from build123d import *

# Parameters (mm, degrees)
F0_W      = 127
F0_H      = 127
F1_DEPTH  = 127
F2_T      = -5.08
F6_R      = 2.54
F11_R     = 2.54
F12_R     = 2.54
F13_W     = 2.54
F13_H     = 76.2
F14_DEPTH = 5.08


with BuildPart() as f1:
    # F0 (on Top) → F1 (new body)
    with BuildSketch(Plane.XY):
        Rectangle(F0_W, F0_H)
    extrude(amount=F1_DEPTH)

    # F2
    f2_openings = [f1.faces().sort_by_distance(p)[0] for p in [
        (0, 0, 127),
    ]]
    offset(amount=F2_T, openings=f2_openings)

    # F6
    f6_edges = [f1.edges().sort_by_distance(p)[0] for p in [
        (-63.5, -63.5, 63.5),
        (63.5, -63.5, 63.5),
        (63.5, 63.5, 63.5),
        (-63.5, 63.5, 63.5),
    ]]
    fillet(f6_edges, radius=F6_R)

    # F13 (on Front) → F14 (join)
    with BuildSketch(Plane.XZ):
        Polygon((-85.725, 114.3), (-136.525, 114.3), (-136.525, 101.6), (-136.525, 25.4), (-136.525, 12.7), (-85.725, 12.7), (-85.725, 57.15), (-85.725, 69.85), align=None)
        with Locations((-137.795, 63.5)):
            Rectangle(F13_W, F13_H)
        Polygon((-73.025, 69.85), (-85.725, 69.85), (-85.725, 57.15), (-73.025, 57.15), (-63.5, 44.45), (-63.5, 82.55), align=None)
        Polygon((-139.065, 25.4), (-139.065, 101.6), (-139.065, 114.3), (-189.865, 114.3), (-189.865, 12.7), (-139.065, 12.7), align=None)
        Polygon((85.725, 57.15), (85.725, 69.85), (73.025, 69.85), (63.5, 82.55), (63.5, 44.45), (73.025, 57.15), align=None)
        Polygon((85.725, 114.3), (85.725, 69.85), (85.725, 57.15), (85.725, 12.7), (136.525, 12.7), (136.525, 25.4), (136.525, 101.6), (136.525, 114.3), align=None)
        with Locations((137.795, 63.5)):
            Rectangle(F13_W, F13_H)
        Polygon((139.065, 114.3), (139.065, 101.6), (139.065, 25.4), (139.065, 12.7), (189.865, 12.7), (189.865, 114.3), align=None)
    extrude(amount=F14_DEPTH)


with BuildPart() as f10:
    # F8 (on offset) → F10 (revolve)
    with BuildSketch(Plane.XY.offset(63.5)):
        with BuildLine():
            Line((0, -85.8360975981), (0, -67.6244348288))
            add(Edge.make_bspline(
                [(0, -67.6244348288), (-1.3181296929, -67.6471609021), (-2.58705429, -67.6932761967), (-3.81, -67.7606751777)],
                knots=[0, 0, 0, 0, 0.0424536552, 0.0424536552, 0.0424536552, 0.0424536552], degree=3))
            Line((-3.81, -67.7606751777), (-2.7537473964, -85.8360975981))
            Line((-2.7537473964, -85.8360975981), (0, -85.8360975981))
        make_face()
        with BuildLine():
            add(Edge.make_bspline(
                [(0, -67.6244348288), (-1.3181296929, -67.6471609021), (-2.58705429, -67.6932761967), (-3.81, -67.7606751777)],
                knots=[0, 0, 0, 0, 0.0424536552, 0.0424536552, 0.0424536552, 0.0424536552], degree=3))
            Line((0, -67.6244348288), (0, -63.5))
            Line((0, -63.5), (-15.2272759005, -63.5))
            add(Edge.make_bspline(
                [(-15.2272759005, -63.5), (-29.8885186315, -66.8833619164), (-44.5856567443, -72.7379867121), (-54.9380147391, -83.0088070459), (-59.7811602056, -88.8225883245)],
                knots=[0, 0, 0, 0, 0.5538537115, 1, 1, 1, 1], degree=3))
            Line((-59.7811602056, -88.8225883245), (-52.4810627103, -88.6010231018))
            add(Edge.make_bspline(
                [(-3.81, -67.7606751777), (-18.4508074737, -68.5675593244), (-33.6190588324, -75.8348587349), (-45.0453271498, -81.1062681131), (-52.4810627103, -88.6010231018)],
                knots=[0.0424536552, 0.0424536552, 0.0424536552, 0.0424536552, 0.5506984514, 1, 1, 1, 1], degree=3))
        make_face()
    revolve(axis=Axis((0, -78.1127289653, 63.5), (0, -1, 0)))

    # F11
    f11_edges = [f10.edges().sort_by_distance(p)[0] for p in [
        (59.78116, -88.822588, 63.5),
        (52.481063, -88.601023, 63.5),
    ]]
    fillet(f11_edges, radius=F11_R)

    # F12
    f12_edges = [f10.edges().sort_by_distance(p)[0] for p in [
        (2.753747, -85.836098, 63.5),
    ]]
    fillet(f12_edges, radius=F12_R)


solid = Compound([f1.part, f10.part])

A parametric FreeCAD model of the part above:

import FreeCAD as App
import Part
import Sketcher
Q = App.Units.Quantity


def edges_at(feature, points):
    """Names of the edges that pass closest to the given points."""
    edges = feature.Shape.Edges
    near = lambda p: min(range(len(edges)), key=lambda i: edges[i].distToShape(Part.Vertex(*p))[0])
    return sorted({f"Edge{near(p) + 1}" for p in points})


def faces_at(feature, points):
    """Names of the faces that lie closest to the given points."""
    faces = feature.Shape.Faces
    near = lambda p: min(range(len(faces)), key=lambda i: faces[i].distToShape(Part.Vertex(*p))[0])
    return sorted({f"Face{near(p) + 1}" for p in points})

doc = App.newDocument("Part")
body = doc.addObject("PartDesign::Body", "Body")

# Sketch on XY plane
sketch1 = body.newObject("Sketcher::SketchObject", "Sketch")
sketch1.AttachmentSupport = (doc.getObject("XY_Plane"), [""])
sketch1.MapMode = "FlatFace"
sketch1.addGeometry([
    Part.LineSegment(App.Vector(-64, 64, 0), App.Vector(-64, -64, 0)),
    Part.LineSegment(App.Vector(-64, -64, 0), App.Vector(64, -64, 0)),
    Part.LineSegment(App.Vector(64, -64, 0), App.Vector(64, 64, 0)),
    Part.LineSegment(App.Vector(64, 64, 0), App.Vector(-64, 64, 0)),
], False)
sketch1.addConstraint([
    Sketcher.Constraint("Coincident", 0, 2, 1, 1),
    Sketcher.Constraint("Coincident", 1, 2, 2, 1),
    Sketcher.Constraint("Coincident", 2, 2, 3, 1),
    Sketcher.Constraint("Coincident", 3, 2, 0, 1),
    Sketcher.Constraint("Vertical", 0),
    Sketcher.Constraint("Horizontal", 1),
    Sketcher.Constraint("Vertical", 2),
    Sketcher.Constraint("Horizontal", 3),
    Sketcher.Constraint("Symmetric", 0, 2, 2, 2, -1, 1),
    Sketcher.Constraint("Equal", 3, 0),
    Sketcher.Constraint("DistanceX", 1, 1, 1, 2, Q("5 in")),
])
pad1 = body.newObject("PartDesign::Pad", "Pad")
pad1.Profile = sketch1
pad1.Length = Q("5 in")
doc.recompute()

thickness = body.newObject("PartDesign::Thickness", "Thickness")
thickness.Base = (pad1, faces_at(pad1, [(0, 0, 127)]))
thickness.Value = Q("0.2 in")
thickness.Reversed = True
thickness.Join = "Arc"
doc.recompute()

fillet = body.newObject("PartDesign::Fillet", "Fillet")
fillet.Base = (thickness, edges_at(thickness, [
    (-63.5, -63.5, 63.5),
    (63.5, -63.5, 63.5),
    (63.5, 63.5, 63.5),
    (-63.5, 63.5, 63.5),
]))
fillet.Radius = Q("0.1 in")

# Sketch on XZ plane
sketch2 = body.newObject("Sketcher::SketchObject", "Sketch001")
sketch2.AttachmentSupport = (doc.getObject("XZ_Plane"), [""])
sketch2.MapMode = "FlatFace"
sketch2.addGeometry([
    Part.LineSegment(App.Vector(-85.7, 114.3, 0), App.Vector(-136.5, 114.3, 0)),  # 0
    Part.LineSegment(App.Vector(-136.5, 114.3, 0), App.Vector(-136.5, 101.6, 0)),  # 1
    Part.LineSegment(App.Vector(-136.5, 101.6, 0), App.Vector(-139.1, 101.6, 0)),  # 2
    Part.LineSegment(App.Vector(-139.1, 101.6, 0), App.Vector(-139.1, 114.3, 0)),  # 3
    Part.LineSegment(App.Vector(-139.1, 114.3, 0), App.Vector(-189.9, 114.3, 0)),  # 4
    Part.LineSegment(App.Vector(-189.9, 114.3, 0), App.Vector(-189.9, 12.7, 0)),  # 5
    Part.LineSegment(App.Vector(-189.9, 12.7, 0), App.Vector(-139.1, 12.7, 0)),  # 6
    Part.LineSegment(App.Vector(-139.1, 12.7, 0), App.Vector(-139.1, 25.4, 0)),  # 7
    Part.LineSegment(App.Vector(-139.1, 25.4, 0), App.Vector(-136.5, 25.4, 0)),  # 8
    Part.LineSegment(App.Vector(-136.5, 25.4, 0), App.Vector(-136.5, 12.7, 0)),  # 9
    Part.LineSegment(App.Vector(-136.5, 12.7, 0), App.Vector(-85.7, 12.7, 0)),  # 10
    Part.LineSegment(App.Vector(-85.7, 12.7, 0), App.Vector(-85.7, 57.1, 0)),  # 11
    Part.LineSegment(App.Vector(-85.7, 57.1, 0), App.Vector(-73, 57.1, 0)),  # 12
    Part.LineSegment(App.Vector(-73, 57.1, 0), App.Vector(-63.5, 44.5, 0)),  # 13
    Part.LineSegment(App.Vector(-63.5, 44.5, 0), App.Vector(-63.5, 82.5, 0)),  # 14
    Part.LineSegment(App.Vector(-63.5, 82.5, 0), App.Vector(-73, 69.8, 0)),  # 15
    Part.LineSegment(App.Vector(-73, 69.8, 0), App.Vector(-85.7, 69.8, 0)),  # 16
    Part.LineSegment(App.Vector(-85.7, 69.8, 0), App.Vector(-85.7, 114.3, 0)),  # 17
    Part.LineSegment(App.Vector(85.7, 69.8, 0), App.Vector(73, 69.8, 0)),  # 18
    Part.LineSegment(App.Vector(73, 69.8, 0), App.Vector(63.5, 82.5, 0)),  # 19
    Part.LineSegment(App.Vector(63.5, 82.5, 0), App.Vector(63.5, 44.5, 0)),  # 20
    Part.LineSegment(App.Vector(63.5, 44.5, 0), App.Vector(73, 57.1, 0)),  # 21
    Part.LineSegment(App.Vector(73, 57.1, 0), App.Vector(85.7, 57.1, 0)),  # 22
    Part.LineSegment(App.Vector(85.7, 57.1, 0), App.Vector(85.7, 12.7, 0)),  # 23
    Part.LineSegment(App.Vector(85.7, 12.7, 0), App.Vector(136.5, 12.7, 0)),  # 24
    Part.LineSegment(App.Vector(136.5, 12.7, 0), App.Vector(136.5, 25.4, 0)),  # 25
    Part.LineSegment(App.Vector(136.5, 25.4, 0), App.Vector(139.1, 25.4, 0)),  # 26
    Part.LineSegment(App.Vector(139.1, 25.4, 0), App.Vector(139.1, 12.7, 0)),  # 27
    Part.LineSegment(App.Vector(139.1, 12.7, 0), App.Vector(189.9, 12.7, 0)),  # 28
    Part.LineSegment(App.Vector(189.9, 12.7, 0), App.Vector(189.9, 114.3, 0)),  # 29
    Part.LineSegment(App.Vector(189.9, 114.3, 0), App.Vector(139.1, 114.3, 0)),  # 30
    Part.LineSegment(App.Vector(139.1, 114.3, 0), App.Vector(139.1, 101.6, 0)),  # 31
    Part.LineSegment(App.Vector(139.1, 101.6, 0), App.Vector(136.5, 101.6, 0)),  # 32
    Part.LineSegment(App.Vector(136.5, 101.6, 0), App.Vector(136.5, 114.3, 0)),  # 33
    Part.LineSegment(App.Vector(136.5, 114.3, 0), App.Vector(85.7, 114.3, 0)),  # 34
    Part.LineSegment(App.Vector(85.7, 114.3, 0), App.Vector(85.7, 69.8, 0)),  # 35
], False)
sketch2.addConstraint([
    Sketcher.Constraint("Coincident", 0, 2, 1, 1),
    Sketcher.Constraint("Coincident", 1, 2, 2, 1),
    Sketcher.Constraint("Coincident", 2, 2, 3, 1),
    Sketcher.Constraint("Coincident", 3, 2, 4, 1),
    Sketcher.Constraint("Coincident", 4, 2, 5, 1),
    Sketcher.Constraint("Coincident", 5, 2, 6, 1),
    Sketcher.Constraint("Coincident", 6, 2, 7, 1),
    Sketcher.Constraint("Coincident", 7, 2, 8, 1),
    Sketcher.Constraint("Coincident", 8, 2, 9, 1),
    Sketcher.Constraint("Coincident", 9, 2, 10, 1),
    Sketcher.Constraint("Coincident", 10, 2, 11, 1),
    Sketcher.Constraint("Coincident", 11, 2, 12, 1),
    Sketcher.Constraint("Coincident", 12, 2, 13, 1),
    Sketcher.Constraint("Coincident", 13, 2, 14, 1),
    Sketcher.Constraint("Coincident", 14, 2, 15, 1),
    Sketcher.Constraint("Coincident", 15, 2, 16, 1),
    Sketcher.Constraint("Coincident", 16, 2, 17, 1),
    Sketcher.Constraint("Coincident", 17, 2, 0, 1),
    Sketcher.Constraint("Coincident", 18, 2, 19, 1),
    Sketcher.Constraint("Coincident", 19, 2, 20, 1),
    Sketcher.Constraint("Coincident", 20, 2, 21, 1),
    Sketcher.Constraint("Coincident", 21, 2, 22, 1),
    Sketcher.Constraint("Coincident", 22, 2, 23, 1),
    Sketcher.Constraint("Coincident", 23, 2, 24, 1),
    Sketcher.Constraint("Coincident", 24, 2, 25, 1),
    Sketcher.Constraint("Coincident", 25, 2, 26, 1),
    Sketcher.Constraint("Coincident", 26, 2, 27, 1),
    Sketcher.Constraint("Coincident", 27, 2, 28, 1),
    Sketcher.Constraint("Coincident", 28, 2, 29, 1),
    Sketcher.Constraint("Coincident", 29, 2, 30, 1),
    Sketcher.Constraint("Coincident", 30, 2, 31, 1),
    Sketcher.Constraint("Coincident", 31, 2, 32, 1),
    Sketcher.Constraint("Coincident", 32, 2, 33, 1),
    Sketcher.Constraint("Coincident", 33, 2, 34, 1),
    Sketcher.Constraint("Coincident", 34, 2, 35, 1),
    Sketcher.Constraint("Coincident", 35, 2, 18, 1),
    Sketcher.Constraint("Horizontal", 0),
    Sketcher.Constraint("Vertical", 1),
    Sketcher.Constraint("Horizontal", 2),
    Sketcher.Constraint("Vertical", 3),
    Sketcher.Constraint("Horizontal", 4),
    Sketcher.Constraint("Vertical", 5),
    Sketcher.Constraint("Horizontal", 6),
    Sketcher.Constraint("Vertical", 7),
    Sketcher.Constraint("Horizontal", 8),
    Sketcher.Constraint("Vertical", 9),
    Sketcher.Constraint("Horizontal", 10),
    Sketcher.Constraint("Vertical", 11),
    Sketcher.Constraint("Horizontal", 12),
    Sketcher.Constraint("Vertical", 14),
    Sketcher.Constraint("Horizontal", 16),
    Sketcher.Constraint("Vertical", 17),
    Sketcher.Constraint("Horizontal", 18),
    Sketcher.Constraint("Vertical", 20),
    Sketcher.Constraint("Horizontal", 22),
    Sketcher.Constraint("Vertical", 23),
    Sketcher.Constraint("Horizontal", 24),
    Sketcher.Constraint("Vertical", 25),
    Sketcher.Constraint("Horizontal", 26),
    Sketcher.Constraint("Vertical", 27),
    Sketcher.Constraint("Horizontal", 28),
    Sketcher.Constraint("Vertical", 29),
    Sketcher.Constraint("Horizontal", 30),
    Sketcher.Constraint("Vertical", 31),
    Sketcher.Constraint("Horizontal", 32),
    Sketcher.Constraint("Vertical", 33),
    Sketcher.Constraint("Horizontal", 34),
    Sketcher.Constraint("Vertical", 35),
    Sketcher.Constraint("Symmetric", 15, 2, 18, 2, -2),
    Sketcher.Constraint("Symmetric", 14, 2, 19, 2, -2),
    Sketcher.Constraint("Symmetric", 12, 2, 21, 2, -2),
    Sketcher.Constraint("Symmetric", 10, 2, 23, 2, -2),
    Sketcher.Constraint("Symmetric", 8, 2, 25, 2, -2),
    Sketcher.Constraint("Symmetric", 6, 2, 27, 2, -2),
    Sketcher.Constraint("Symmetric", 4, 2, 29, 2, -2),
    Sketcher.Constraint("Symmetric", 2, 2, 31, 2, -2),
    Sketcher.Constraint("Symmetric", 0, 2, 33, 2, -2),
    Sketcher.Constraint("Parallel", 13, 19),
    Sketcher.Constraint("Parallel", 15, 21),
    Sketcher.Constraint("Horizontal", 0, 2, 3, 2),
    Sketcher.Constraint("Horizontal", 6, 2, 9, 2),
    Sketcher.Constraint("Vertical", 3, 2, 6, 2),
    Sketcher.Constraint("Vertical", 1, 2, 8, 2),
    Sketcher.Constraint("Vertical", 12, 2, 15, 2),
    Sketcher.Constraint("Vertical", 11, 2, 16, 2),
    Sketcher.Constraint("Vertical", 23, 2, 34, 2),
    Sketcher.Constraint("Equal", 0, 4),
    Sketcher.Constraint("Equal", 22, 1),
    Sketcher.Constraint("Equal", 3, 7),
    Sketcher.Constraint("Equal", 11, 17),
    Sketcher.Constraint("DistanceX", 0, 2, 0, 1, Q("2 in")),
    Sketcher.Constraint("DistanceY", 5, 2, 5, 1, Q("4 in")),
    Sketcher.Constraint("DistanceX", 2, 2, 2, 1, Q("0.1 in")),
    Sketcher.Constraint("DistanceX", 12, 1, 12, 2, Q("0.5 in")),
    Sketcher.Constraint("DistanceY", 14, 1, 14, 2, Q("1.5 in")),
    Sketcher.Constraint("DistanceY", -1, 1, 1, 2, Q("4 in")),
    Sketcher.Constraint("DistanceY", 12, 2, 14, 2, Q("1 in")),
    Sketcher.Constraint("DistanceX", 14, 2, 19, 2, Q("5 in")),
    Sketcher.Constraint("DistanceX", 15, 2, 18, 2, Q("5.75 in")),
])
pad2 = body.newObject("PartDesign::Pad", "Pad001")
pad2.Profile = sketch2
pad2.Length = Q("0.2 in")
body2 = doc.addObject("PartDesign::Body", "Body001")

# Sketch on XY plane
sketch3 = body2.newObject("Sketcher::SketchObject", "Sketch002")
sketch3.AttachmentSupport = (doc.getObject("XY_Plane001"), [""])
sketch3.MapMode = "FlatFace"
sketch3.AttachmentOffset = App.Placement(App.Vector(0, 0, 2.5 * 25.4), App.Rotation())
sketch3.addGeometry([
    Part.LineSegment(App.Vector(0, -85.836098, 0), App.Vector(0, -63.5, 0)),  # 0
    Part.LineSegment(App.Vector(0, -63.5, 0), App.Vector(-15.227276, -63.5, 0)),  # 1
    Part.BSplineCurve([App.Vector(-15.227276, -63.5, 0), App.Vector(-29.888519, -66.883362, 0), App.Vector(-44.585657, -72.737987, 0), App.Vector(-54.938015, -83.008807, 0), App.Vector(-59.78116, -88.822588, 0)], [4, 1, 4], [0, 0.553853711, 1], False, 3, [1, 1, 1, 1, 1], False),  # 2
    Part.LineSegment(App.Vector(-59.78116, -88.822588, 0), App.Vector(-52.481063, -88.601023, 0)),  # 3
    Part.BSplineCurve([App.Vector(-3.81, -67.760675, 0), App.Vector(-18.450807, -68.567559, 0), App.Vector(-33.619059, -75.834859, 0), App.Vector(-45.045327, -81.106268, 0), App.Vector(-52.481063, -88.601023, 0)], [4, 1, 4], [0.042453655, 0.550698451, 1], False, 3, [1, 1, 1, 1, 1], False),  # 4
    Part.LineSegment(App.Vector(-3.81, -67.760675, 0), App.Vector(-2.753747, -85.836098, 0)),  # 5
    Part.LineSegment(App.Vector(-2.753747, -85.836098, 0), App.Vector(0, -85.836098, 0)),  # 6
], False)
sketch3.addConstraint([
    Sketcher.Constraint("Block", 2),
    Sketcher.Constraint("Block", 4),
    Sketcher.Constraint("Coincident", 0, 2, 1, 1),
    Sketcher.Constraint("Coincident", 1, 2, 2, 1),
    Sketcher.Constraint("Coincident", 2, 2, 3, 1),
    Sketcher.Constraint("Coincident", 3, 2, 4, 2),
    Sketcher.Constraint("Coincident", 4, 1, 5, 1),
    Sketcher.Constraint("Coincident", 5, 2, 6, 1),
    Sketcher.Constraint("Coincident", 6, 2, 0, 1),
    Sketcher.Constraint("Vertical", 0),
    Sketcher.Constraint("Horizontal", 1),
    Sketcher.Constraint("Horizontal", 6),
    Sketcher.Constraint("PointOnObject", 0, 2, -2),
    Sketcher.Constraint("DistanceX", 6, 1, 6, 2, Q("2.753747 mm")),
    Sketcher.Constraint("DistanceY", 0, 1, 0, 2, Q("22.336098 mm")),
])
revolution = body2.newObject("PartDesign::Revolution", "Revolution")
revolution.Profile = sketch3
revolution.ReferenceAxis = (sketch3, ["V_Axis"])
revolution.Angle = 360
doc.recompute()

fillet2 = body2.newObject("PartDesign::Fillet", "Fillet001")
fillet2.Base = (revolution, edges_at(revolution, [(59.781, -88.823, 63.5), (52.481, -88.601, 63.5)]))
fillet2.Radius = Q("0.1 in")
doc.recompute()

fillet3 = body2.newObject("PartDesign::Fillet", "Fillet002")
fillet3.Base = (fillet2, edges_at(fillet2, [(2.754, -85.836, 63.5)]))
fillet3.Radius = Q("0.1 in")

doc.recompute()
